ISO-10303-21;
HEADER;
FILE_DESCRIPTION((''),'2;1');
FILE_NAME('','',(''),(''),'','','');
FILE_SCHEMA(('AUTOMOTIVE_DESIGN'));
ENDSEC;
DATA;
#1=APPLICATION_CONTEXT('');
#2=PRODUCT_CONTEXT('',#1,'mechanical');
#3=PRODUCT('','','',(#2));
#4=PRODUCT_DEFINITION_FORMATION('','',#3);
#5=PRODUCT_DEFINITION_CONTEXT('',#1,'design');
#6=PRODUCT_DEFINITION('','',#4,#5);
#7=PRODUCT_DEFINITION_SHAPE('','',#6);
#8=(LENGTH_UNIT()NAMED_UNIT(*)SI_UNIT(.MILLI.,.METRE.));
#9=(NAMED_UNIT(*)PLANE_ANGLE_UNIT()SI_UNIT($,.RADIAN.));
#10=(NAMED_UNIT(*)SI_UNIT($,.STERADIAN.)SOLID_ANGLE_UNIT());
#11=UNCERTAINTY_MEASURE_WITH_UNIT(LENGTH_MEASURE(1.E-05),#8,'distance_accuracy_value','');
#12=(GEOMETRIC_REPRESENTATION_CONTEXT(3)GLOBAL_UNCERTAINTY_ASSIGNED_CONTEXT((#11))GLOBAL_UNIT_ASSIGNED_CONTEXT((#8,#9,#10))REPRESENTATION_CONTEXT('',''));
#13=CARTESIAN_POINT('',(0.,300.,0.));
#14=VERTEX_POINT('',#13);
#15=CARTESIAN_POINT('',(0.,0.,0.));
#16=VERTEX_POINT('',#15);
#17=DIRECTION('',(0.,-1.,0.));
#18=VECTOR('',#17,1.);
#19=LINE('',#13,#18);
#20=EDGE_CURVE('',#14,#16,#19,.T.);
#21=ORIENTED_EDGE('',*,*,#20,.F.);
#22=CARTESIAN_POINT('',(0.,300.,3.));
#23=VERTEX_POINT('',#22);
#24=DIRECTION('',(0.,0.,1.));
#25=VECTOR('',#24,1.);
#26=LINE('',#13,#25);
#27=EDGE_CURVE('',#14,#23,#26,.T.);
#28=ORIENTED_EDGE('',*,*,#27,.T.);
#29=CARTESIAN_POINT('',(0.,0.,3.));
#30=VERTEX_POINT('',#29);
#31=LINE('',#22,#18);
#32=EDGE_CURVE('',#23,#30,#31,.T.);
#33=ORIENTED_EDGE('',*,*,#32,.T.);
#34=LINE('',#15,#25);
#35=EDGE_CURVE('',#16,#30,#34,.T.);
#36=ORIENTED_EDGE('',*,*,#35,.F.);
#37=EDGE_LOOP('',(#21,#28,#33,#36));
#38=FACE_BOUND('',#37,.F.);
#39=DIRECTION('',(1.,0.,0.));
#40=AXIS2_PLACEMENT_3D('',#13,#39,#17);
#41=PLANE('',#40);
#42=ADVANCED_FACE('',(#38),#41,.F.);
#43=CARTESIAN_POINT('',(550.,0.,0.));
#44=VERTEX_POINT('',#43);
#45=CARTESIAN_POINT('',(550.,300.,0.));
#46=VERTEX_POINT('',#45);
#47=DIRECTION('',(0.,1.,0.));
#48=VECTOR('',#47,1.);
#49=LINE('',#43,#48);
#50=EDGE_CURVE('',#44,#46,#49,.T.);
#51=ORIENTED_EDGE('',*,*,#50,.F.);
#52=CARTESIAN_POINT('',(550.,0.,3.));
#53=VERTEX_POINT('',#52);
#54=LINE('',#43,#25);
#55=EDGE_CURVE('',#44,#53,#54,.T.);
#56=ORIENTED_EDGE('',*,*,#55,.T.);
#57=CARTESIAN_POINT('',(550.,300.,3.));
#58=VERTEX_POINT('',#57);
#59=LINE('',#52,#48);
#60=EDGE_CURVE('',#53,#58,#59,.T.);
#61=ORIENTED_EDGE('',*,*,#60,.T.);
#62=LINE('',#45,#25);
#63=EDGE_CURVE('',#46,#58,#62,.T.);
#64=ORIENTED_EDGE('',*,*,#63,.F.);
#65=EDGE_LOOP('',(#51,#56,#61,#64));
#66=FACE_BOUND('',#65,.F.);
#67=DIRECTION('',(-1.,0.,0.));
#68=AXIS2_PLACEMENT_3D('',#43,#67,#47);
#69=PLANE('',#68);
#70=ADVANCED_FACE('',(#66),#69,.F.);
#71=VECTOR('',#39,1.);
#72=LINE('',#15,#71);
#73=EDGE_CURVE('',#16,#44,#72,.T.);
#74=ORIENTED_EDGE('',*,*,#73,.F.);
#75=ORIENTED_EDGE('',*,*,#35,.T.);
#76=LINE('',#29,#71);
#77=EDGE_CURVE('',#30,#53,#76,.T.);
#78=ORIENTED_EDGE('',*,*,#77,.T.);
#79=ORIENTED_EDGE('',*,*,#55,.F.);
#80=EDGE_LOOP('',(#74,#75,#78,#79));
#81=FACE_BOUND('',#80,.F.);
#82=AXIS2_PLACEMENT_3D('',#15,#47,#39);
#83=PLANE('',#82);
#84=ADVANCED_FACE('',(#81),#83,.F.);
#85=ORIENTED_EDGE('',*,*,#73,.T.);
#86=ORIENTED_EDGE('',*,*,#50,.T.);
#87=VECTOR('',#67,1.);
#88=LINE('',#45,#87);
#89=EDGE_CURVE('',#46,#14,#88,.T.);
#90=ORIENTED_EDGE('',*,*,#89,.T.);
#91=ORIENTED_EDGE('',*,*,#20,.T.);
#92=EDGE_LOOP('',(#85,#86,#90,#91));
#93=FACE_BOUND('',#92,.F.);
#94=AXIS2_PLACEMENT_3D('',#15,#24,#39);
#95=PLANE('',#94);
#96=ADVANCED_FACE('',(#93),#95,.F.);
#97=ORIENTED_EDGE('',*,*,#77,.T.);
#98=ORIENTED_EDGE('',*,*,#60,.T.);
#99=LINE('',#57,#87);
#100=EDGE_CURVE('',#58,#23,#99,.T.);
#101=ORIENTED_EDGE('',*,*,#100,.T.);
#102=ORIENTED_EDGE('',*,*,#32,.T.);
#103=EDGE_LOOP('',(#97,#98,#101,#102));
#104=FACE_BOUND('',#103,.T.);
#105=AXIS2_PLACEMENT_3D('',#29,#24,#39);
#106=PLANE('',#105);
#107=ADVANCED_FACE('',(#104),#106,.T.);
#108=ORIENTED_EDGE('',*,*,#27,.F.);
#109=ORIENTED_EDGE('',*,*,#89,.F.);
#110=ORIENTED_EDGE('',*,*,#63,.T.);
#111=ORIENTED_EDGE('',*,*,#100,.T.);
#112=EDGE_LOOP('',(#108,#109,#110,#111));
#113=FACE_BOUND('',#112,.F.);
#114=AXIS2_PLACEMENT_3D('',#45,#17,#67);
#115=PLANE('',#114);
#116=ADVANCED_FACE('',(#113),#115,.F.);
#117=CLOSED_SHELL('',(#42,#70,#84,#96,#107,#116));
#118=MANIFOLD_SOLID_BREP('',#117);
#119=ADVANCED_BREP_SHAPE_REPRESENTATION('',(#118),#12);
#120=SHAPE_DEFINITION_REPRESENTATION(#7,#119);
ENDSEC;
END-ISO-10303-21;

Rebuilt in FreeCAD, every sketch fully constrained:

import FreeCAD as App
import Part
import Sketcher

V = App.Vector

doc = App.newDocument("Part")
body = doc.addObject("PartDesign::Body", "Body")

# Sketch on XY plane
sketch1 = body.newObject("Sketcher::SketchObject", "Sketch")
sketch1.AttachmentSupport = (doc.getObject("XY_Plane"), [""])
sketch1.MapMode = "FlatFace"
sketch1.addGeometry(Part.LineSegment(V(0, 300, 0), V(0, 0, 0)), False)
sketch1.addGeometry(Part.LineSegment(V(0, 0, 0), V(550, 0, 0)), False)
sketch1.addGeometry(Part.LineSegment(V(550, 0, 0), V(550, 300, 0)), False)
sketch1.addGeometry(Part.LineSegment(V(550, 300, 0), V(0, 300, 0)), False)
sketch1.addConstraint(Sketcher.Constraint("Coincident", 0, 2, 1, 1))
sketch1.addConstraint(Sketcher.Constraint("Coincident", 1, 2, 2, 1))
sketch1.addConstraint(Sketcher.Constraint("Coincident", 2, 2, 3, 1))
sketch1.addConstraint(Sketcher.Constraint("Coincident", 3, 2, 0, 1))
sketch1.addConstraint(Sketcher.Constraint("Vertical", 0))
sketch1.addConstraint(Sketcher.Constraint("Horizontal", 1))
sketch1.addConstraint(Sketcher.Constraint("Vertical", 2))
sketch1.addConstraint(Sketcher.Constraint("Horizontal", 3))
sketch1.addConstraint(Sketcher.Constraint("Coincident", 0, 2, -1, 1))
sketch1.addConstraint(Sketcher.Constraint("DistanceX", 1, 1, 1, 2, 550.0))
sketch1.addConstraint(Sketcher.Constraint("DistanceY", 0, 2, 0, 1, 300.0))
pad1 = body.newObject("PartDesign::Pad", "Pad")
pad1.Profile = sketch1
pad1.Length = 3

doc.recompute()
